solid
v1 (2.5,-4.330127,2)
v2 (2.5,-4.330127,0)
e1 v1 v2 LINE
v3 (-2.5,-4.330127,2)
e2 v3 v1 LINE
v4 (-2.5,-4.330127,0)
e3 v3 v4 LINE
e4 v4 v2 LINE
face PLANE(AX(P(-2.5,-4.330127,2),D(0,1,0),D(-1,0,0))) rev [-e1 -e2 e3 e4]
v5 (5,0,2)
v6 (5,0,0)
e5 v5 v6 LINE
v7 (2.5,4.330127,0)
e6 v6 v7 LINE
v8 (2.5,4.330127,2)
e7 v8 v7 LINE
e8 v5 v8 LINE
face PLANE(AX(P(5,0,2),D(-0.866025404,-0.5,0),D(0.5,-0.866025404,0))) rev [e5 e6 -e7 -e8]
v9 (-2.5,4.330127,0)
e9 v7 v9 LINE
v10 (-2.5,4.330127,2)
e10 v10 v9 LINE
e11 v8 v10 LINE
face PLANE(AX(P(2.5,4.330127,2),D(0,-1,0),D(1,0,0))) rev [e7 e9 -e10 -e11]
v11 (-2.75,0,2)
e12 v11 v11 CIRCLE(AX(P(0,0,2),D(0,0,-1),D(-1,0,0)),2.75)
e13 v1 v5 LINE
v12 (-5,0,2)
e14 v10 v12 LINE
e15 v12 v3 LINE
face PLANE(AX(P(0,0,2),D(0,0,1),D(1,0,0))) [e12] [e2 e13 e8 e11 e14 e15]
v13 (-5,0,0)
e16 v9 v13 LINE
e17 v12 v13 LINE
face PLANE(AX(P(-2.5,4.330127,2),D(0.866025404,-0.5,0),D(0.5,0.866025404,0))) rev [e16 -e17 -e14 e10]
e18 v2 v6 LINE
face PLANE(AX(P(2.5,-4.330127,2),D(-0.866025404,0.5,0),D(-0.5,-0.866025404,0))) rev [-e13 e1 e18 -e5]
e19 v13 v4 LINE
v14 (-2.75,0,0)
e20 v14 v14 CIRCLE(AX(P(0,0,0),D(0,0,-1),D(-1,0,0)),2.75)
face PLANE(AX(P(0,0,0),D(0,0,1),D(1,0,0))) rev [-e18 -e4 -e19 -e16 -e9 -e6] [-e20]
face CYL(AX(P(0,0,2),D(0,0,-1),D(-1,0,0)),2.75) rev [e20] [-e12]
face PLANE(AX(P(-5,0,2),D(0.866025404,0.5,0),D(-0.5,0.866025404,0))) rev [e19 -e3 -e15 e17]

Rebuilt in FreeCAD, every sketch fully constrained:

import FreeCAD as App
import Part
import Sketcher

V = App.Vector
Q = App.Units.Quantity

doc = App.newDocument("Part")
body = doc.addObject("PartDesign::Body", "Body")

sketch1 = doc.addObject("Sketcher::SketchObject", "Sketch")
body.addObject(sketch1)
sketch1.AttachmentSupport = (doc.XY_Plane, [""])
sketch1.MapMode = "FlatFace"
sketch1.addGeometry([
    Part.LineSegment(V(-2, -4, 0), V(2, -4, 0)),
    Part.LineSegment(V(2, -4, 0), V(5, 0, 0)),
    Part.LineSegment(V(5, 0, 0), V(2, 4, 0)),
    Part.LineSegment(V(2, 4, 0), V(-2, 4, 0)),
    Part.LineSegment(V(-2, 4, 0), V(-5, 0, 0)),
    Part.LineSegment(V(-5, 0, 0), V(-2, -4, 0)),
], False)
sketch1.addConstraint([
    Sketcher.Constraint("Coincident", 0, 2, 1, 1),
    Sketcher.Constraint("Coincident", 1, 2, 2, 1),
    Sketcher.Constraint("Coincident", 2, 2, 3, 1),
    Sketcher.Constraint("Coincident", 3, 2, 4, 1),
    Sketcher.Constraint("Coincident", 4, 2, 5, 1),
    Sketcher.Constraint("Coincident", 5, 2, 0, 1),
    Sketcher.Constraint("Horizontal", 0),
    Sketcher.Constraint("Horizontal", 3),
    Sketcher.Constraint("Symmetric", 0, 2, 3, 2, -1, 1),
    Sketcher.Constraint("Symmetric", 1, 2, 4, 2, -1, 1),
    Sketcher.Constraint("PointOnObject", 1, 2, -1),
    Sketcher.Constraint("Parallel", 2, 5),
    Sketcher.Constraint("Vertical", 0, 2, 2, 2),
    Sketcher.Constraint("DistanceX", 0, 1, 0, 2, Q("5 mm")),
    Sketcher.Constraint("Angle", 1, Q("60 deg")),
    Sketcher.Constraint("Distance", 1, Q("5 mm")),
])
pad1 = doc.addObject("PartDesign::Pad", "Pad")
body.addObject(pad1)
pad1.Profile = sketch1
pad1.Length = 2

sketch2 = doc.addObject("Sketcher::SketchObject", "Sketch001")
body.addObject(sketch2)
sketch2.AttachmentSupport = (doc.XY_Plane, [""])
sketch2.MapMode = "FlatFace"
sketch2.addGeometry(Part.Circle(V(0, 0, 0), V(0, 0, 1), 2.8), False)
sketch2.addConstraint([
    Sketcher.Constraint("Coincident", 0, 3, -1, 1),
    Sketcher.Constraint("Diameter", 0, Q("5.5 mm")),
])
pocket1 = doc.addObject("PartDesign::Pocket", "Pocket")
body.addObject(pocket1)
pocket1.Profile = sketch2
pocket1.Type = "ThroughAll"
pocket1.Reversed = True

doc.recompute()
